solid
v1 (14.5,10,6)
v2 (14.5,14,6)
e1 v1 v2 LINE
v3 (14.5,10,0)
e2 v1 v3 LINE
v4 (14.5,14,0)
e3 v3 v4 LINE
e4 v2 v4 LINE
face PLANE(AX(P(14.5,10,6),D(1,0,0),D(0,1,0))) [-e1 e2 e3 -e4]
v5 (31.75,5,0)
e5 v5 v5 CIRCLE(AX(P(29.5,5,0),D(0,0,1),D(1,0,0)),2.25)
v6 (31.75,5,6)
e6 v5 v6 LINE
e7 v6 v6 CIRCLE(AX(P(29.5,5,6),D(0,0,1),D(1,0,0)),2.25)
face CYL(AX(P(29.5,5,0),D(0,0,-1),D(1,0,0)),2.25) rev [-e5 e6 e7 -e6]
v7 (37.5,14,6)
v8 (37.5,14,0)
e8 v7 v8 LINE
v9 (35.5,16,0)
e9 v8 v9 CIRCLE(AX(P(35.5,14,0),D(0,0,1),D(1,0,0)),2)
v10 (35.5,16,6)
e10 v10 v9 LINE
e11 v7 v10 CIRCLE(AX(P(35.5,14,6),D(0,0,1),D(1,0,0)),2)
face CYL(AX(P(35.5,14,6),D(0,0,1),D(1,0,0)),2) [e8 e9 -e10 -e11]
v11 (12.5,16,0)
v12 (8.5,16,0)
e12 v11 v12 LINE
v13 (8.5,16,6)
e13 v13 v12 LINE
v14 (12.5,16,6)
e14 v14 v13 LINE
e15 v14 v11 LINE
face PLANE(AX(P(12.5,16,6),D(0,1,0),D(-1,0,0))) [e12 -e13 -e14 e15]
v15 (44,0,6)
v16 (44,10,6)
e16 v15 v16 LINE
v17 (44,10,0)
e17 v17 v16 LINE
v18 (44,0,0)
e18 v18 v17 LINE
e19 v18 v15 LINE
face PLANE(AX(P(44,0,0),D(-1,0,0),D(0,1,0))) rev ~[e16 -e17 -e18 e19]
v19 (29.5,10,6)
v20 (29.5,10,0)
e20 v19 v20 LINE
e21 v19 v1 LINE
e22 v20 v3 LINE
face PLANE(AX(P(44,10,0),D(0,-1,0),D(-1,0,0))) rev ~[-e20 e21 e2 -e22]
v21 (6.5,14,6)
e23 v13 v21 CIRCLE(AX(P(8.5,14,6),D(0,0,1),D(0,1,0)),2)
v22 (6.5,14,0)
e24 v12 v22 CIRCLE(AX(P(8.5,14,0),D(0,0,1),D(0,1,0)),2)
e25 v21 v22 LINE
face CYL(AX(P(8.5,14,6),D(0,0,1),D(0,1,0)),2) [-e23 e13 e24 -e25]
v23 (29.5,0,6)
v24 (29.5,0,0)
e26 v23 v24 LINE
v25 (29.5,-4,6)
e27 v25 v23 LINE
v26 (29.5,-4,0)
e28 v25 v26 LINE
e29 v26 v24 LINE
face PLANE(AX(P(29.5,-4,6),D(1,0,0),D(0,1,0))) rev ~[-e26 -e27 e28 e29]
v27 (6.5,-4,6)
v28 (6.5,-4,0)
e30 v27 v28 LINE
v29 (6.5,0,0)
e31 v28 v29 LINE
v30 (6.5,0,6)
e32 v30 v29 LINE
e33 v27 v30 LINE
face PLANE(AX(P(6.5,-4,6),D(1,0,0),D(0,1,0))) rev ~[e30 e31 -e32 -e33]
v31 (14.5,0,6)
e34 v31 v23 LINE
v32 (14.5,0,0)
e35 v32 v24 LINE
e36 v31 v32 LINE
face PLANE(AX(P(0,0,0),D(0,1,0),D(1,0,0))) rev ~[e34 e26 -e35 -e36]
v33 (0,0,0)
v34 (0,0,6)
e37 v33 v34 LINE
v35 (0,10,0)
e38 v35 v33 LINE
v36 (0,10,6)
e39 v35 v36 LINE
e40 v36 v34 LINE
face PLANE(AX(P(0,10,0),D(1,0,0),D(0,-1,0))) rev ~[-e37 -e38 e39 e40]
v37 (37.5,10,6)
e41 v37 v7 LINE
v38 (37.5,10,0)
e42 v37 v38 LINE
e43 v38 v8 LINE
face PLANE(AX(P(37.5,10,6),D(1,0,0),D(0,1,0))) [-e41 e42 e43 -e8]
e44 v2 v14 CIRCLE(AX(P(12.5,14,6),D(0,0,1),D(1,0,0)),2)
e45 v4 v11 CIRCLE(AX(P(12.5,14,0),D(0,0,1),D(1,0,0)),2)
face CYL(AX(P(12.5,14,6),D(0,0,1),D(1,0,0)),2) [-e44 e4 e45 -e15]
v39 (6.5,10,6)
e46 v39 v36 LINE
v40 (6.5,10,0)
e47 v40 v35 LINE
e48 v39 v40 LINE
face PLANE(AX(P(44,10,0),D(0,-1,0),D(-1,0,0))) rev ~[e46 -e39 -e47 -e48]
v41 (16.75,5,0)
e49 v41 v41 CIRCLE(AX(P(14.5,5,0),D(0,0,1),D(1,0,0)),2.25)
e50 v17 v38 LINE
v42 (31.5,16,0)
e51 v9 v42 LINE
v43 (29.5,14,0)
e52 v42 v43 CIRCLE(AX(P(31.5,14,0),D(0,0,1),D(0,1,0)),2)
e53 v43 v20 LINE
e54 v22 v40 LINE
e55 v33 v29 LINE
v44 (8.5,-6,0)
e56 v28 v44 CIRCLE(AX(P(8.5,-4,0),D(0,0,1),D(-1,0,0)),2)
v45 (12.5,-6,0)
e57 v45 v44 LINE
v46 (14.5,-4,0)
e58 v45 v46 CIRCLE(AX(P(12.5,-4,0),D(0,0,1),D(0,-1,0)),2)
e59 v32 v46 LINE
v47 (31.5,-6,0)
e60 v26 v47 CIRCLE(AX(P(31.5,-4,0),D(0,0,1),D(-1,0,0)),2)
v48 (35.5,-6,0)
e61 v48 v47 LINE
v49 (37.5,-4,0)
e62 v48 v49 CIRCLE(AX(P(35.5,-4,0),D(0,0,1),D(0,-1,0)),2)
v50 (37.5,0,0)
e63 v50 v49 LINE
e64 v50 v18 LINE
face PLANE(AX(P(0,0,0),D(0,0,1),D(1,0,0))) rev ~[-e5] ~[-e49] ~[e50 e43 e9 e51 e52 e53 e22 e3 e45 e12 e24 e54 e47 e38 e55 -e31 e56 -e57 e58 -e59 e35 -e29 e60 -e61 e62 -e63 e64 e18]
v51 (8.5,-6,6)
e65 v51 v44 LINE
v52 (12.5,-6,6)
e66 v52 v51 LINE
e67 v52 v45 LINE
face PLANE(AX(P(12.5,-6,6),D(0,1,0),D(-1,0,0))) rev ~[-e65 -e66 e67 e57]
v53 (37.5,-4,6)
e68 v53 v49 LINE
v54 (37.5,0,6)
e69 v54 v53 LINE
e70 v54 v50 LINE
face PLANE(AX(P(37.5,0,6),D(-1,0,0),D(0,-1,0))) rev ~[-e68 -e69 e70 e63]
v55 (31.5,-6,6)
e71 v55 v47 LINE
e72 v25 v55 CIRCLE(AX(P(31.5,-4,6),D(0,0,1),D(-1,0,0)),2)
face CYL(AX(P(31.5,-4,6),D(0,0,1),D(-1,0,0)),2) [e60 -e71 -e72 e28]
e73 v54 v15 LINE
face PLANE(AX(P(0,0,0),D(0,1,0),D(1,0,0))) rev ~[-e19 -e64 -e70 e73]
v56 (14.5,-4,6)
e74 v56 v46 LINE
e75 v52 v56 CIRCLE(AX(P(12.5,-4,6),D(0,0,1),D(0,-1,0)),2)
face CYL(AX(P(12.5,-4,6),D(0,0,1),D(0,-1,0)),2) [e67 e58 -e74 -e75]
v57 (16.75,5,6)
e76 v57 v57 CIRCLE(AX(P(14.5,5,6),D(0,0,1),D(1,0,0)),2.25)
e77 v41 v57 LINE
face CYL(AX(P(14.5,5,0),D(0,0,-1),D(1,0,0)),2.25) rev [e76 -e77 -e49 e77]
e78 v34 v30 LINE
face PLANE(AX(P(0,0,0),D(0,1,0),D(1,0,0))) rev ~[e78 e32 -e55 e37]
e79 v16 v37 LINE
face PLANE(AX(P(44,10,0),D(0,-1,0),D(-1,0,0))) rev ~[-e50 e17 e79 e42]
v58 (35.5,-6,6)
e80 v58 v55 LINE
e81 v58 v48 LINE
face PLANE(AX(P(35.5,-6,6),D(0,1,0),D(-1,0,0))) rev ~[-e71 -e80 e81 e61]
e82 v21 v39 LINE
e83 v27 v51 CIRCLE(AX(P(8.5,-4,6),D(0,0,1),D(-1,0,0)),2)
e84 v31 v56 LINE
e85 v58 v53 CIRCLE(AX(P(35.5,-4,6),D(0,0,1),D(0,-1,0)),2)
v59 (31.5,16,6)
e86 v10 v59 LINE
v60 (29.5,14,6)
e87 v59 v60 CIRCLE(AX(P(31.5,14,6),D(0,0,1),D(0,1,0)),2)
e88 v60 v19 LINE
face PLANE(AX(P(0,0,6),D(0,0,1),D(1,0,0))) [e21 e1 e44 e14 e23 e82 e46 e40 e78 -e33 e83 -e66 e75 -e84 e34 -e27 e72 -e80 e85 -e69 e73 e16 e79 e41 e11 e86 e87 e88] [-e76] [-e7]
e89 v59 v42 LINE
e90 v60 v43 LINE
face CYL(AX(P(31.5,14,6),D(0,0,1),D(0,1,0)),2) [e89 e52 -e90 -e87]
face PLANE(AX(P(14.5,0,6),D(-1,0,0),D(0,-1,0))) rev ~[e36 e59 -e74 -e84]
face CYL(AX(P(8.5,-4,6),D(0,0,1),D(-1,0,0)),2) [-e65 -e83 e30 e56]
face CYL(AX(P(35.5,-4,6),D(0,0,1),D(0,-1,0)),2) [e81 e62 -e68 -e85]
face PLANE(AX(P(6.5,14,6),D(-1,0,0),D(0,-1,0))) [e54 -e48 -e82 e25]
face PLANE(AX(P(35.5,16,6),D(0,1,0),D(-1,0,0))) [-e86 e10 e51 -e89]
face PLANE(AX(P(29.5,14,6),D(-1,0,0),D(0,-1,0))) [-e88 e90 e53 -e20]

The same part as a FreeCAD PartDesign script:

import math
import FreeCAD as App
import Part
import Sketcher
from FreeCAD import Vector

doc = App.newDocument("Part")
body = doc.addObject("PartDesign::Body", "Body")

# Sketch on XY plane
sketch1 = body.newObject("Sketcher::SketchObject", "Sketch")
sketch1.AttachmentSupport = (doc.getObject("XY_Plane"), [""])
sketch1.MapMode = "FlatFace"
sketch1.addGeometry([
    Part.LineSegment(Vector(0, 10, 0), Vector(0, 0, 0)),  # 0
    Part.LineSegment(Vector(0, 0, 0), Vector(44, 0, 0)),  # 1
    Part.LineSegment(Vector(44, 0, 0), Vector(44, 10, 0)),  # 2
    Part.LineSegment(Vector(44, 10, 0), Vector(0, 10, 0)),  # 3
    Part.Circle(Vector(14.5, 5, 0), Vector(0, 0, 1), 2.25),  # 4
    Part.Circle(Vector(29.5, 5, 0), Vector(0, 0, 1), 2.25),  # 5
], False)
sketch1.addConstraint([
    Sketcher.Constraint("Coincident", 0, 2, 1, 1),
    Sketcher.Constraint("Coincident", 1, 2, 2, 1),
    Sketcher.Constraint("Coincident", 2, 2, 3, 1),
    Sketcher.Constraint("Coincident", 3, 2, 0, 1),
    Sketcher.Constraint("Vertical", 0),
    Sketcher.Constraint("Horizontal", 1),
    Sketcher.Constraint("Vertical", 2),
    Sketcher.Constraint("Horizontal", 3),
    Sketcher.Constraint("Coincident", 0, 2, -1, 1),
    Sketcher.Constraint("Equal", 4, 5),
    Sketcher.Constraint("Horizontal", 4, 3, 5, 3),
    Sketcher.Constraint("Diameter", 4, 4.5),
    Sketcher.Constraint("DistanceX", 1, 1, 1, 2, 44.0),
    Sketcher.Constraint("DistanceY", 0, 2, 0, 1, 10.0),
    Sketcher.Constraint("DistanceX", 4, 3, 5, 3, 15.0),
    Sketcher.Constraint("DistanceY", -1, 1, 4, 3, 5.0),
    Sketcher.Constraint("DistanceX", -1, 1, 4, 3, 14.5),
])
pad1 = body.newObject("PartDesign::Pad", "Pad")
pad1.Profile = sketch1
pad1.Length = 6

# Sketch on XY plane
sketch2 = body.newObject("Sketcher::SketchObject", "Sketch001")
sketch2.AttachmentSupport = (doc.getObject("XY_Plane"), [""])
sketch2.MapMode = "FlatFace"
sketch2.AttachmentOffset = App.Placement(Vector(0, 0, 6), App.Rotation())
sketch2.addGeometry([
    Part.LineSegment(Vector(37.5, 0, 0), Vector(29.5, 0, 0)),  # 0
    Part.LineSegment(Vector(29.5, 0, 0), Vector(29.5, -4, 0)),  # 1
    Part.ArcOfCircle(Part.Circle(Vector(31.5, -4, 0), Vector(0, 0, 1), 2), math.radians(180), math.radians(270)),  # 2
    Part.LineSegment(Vector(31.5, -6, 0), Vector(35.5, -6, 0)),  # 3
    Part.ArcOfCircle(Part.Circle(Vector(35.5, -4, 0), Vector(0, 0, 1), 2), math.radians(-90), math.radians(0)),  # 4
    Part.LineSegment(Vector(37.5, -4, 0), Vector(37.5, 0, 0)),  # 5
    Part.LineSegment(Vector(14.5, 0, 0), Vector(6.5, 0, 0)),  # 6
    Part.LineSegment(Vector(6.5, 0, 0), Vector(6.5, -4, 0)),  # 7
    Part.ArcOfCircle(Part.Circle(Vector(8.5, -4, 0), Vector(0, 0, 1), 2), math.radians(180), math.radians(270)),  # 8
    Part.LineSegment(Vector(8.5, -6, 0), Vector(12.5, -6, 0)),  # 9
    Part.ArcOfCircle(Part.Circle(Vector(12.5, -4, 0), Vector(0, 0, 1), 2), math.radians(-90), math.radians(0)),  # 10
    Part.LineSegment(Vector(14.5, -4, 0), Vector(14.5, 0, 0)),  # 11
    Part.LineSegment(Vector(6.5, 10, 0), Vector(14.5, 10, 0)),  # 12
    Part.LineSegment(Vector(14.5, 10, 0), Vector(14.5, 14, 0)),  # 13
    Part.ArcOfCircle(Part.Circle(Vector(12.5, 14, 0), Vector(0, 0, 1), 2), math.radians(0), math.radians(90)),  # 14
    Part.LineSegment(Vector(12.5, 16, 0), Vector(8.5, 16, 0)),  # 15
    Part.ArcOfCircle(Part.Circle(Vector(8.5, 14, 0), Vector(0, 0, 1), 2), math.radians(90), math.radians(180)),  # 16
    Part.LineSegment(Vector(6.5, 14, 0), Vector(6.5, 10, 0)),  # 17
    Part.LineSegment(Vector(29.5, 10, 0), Vector(37.5, 10, 0)),  # 18
    Part.LineSegment(Vector(37.5, 10, 0), Vector(37.5, 14, 0)),  # 19
    Part.ArcOfCircle(Part.Circle(Vector(35.5, 14, 0), Vector(0, 0, 1), 2), math.radians(0), math.radians(90)),  # 20
    Part.LineSegment(Vector(35.5, 16, 0), Vector(31.5, 16, 0)),  # 21
    Part.ArcOfCircle(Part.Circle(Vector(31.5, 14, 0), Vector(0, 0, 1), 2), math.radians(90), math.radians(180)),  # 22
    Part.LineSegment(Vector(29.5, 14, 0), Vector(29.5, 10, 0)),  # 23
], False)
sketch2.addConstraint([
    Sketcher.Constraint("Coincident", 0, 2, 1, 1),
    Sketcher.Constraint("Tangent", 1, 2, 2, 1),
    Sketcher.Constraint("Tangent", 2, 2, 3, 1),
    Sketcher.Constraint("Tangent", 3, 2, 4, 1),
    Sketcher.Constraint("Tangent", 4, 2, 5, 1),
    Sketcher.Constraint("Coincident", 5, 2, 0, 1),
    Sketcher.Constraint("Coincident", 6, 2, 7, 1),
    Sketcher.Constraint("Tangent", 7, 2, 8, 1),
    Sketcher.Constraint("Tangent", 8, 2, 9, 1),
    Sketcher.Constraint("Tangent", 9, 2, 10, 1),
    Sketcher.Constraint("Tangent", 10, 2, 11, 1),
    Sketcher.Constraint("Coincident", 11, 2, 6, 1),
    Sketcher.Constraint("Coincident", 12, 2, 13, 1),
    Sketcher.Constraint("Tangent", 13, 2, 14, 1),
    Sketcher.Constraint("Tangent", 14, 2, 15, 1),
    Sketcher.Constraint("Tangent", 15, 2, 16, 1),
    Sketcher.Constraint("Tangent", 16, 2, 17, 1),
    Sketcher.Constraint("Coincident", 17, 2, 12, 1),
    Sketcher.Constraint("Coincident", 18, 2, 19, 1),
    Sketcher.Constraint("Tangent", 19, 2, 20, 1),
    Sketcher.Constraint("Tangent", 20, 2, 21, 1),
    Sketcher.Constraint("Tangent", 21, 2, 22, 1),
    Sketcher.Constraint("Tangent", 22, 2, 23, 1),
    Sketcher.Constraint("Coincident", 23, 2, 18, 1),
    Sketcher.Constraint("Horizontal", 0),
    Sketcher.Constraint("Vertical", 1),
    Sketcher.Constraint("Horizontal", 3),
    Sketcher.Constraint("Vertical", 5),
    Sketcher.Constraint("Horizontal", 6),
    Sketcher.Constraint("Vertical", 7),
    Sketcher.Constraint("Horizontal", 9),
    Sketcher.Constraint("Vertical", 11),
    Sketcher.Constraint("Horizontal", 12),
    Sketcher.Constraint("Vertical", 13),
    Sketcher.Constraint("Horizontal", 15),
    Sketcher.Constraint("Vertical", 17),
    Sketcher.Constraint("Horizontal", 18),
    Sketcher.Constraint("Vertical", 19),
    Sketcher.Constraint("Horizontal", 21),
    Sketcher.Constraint("Vertical", 23),
    Sketcher.Constraint("Equal", 2, 4),
    Sketcher.Constraint("Equal", 4, 8),
    Sketcher.Constraint("Equal", 8, 10),
    Sketcher.Constraint("Equal", 10, 14),
    Sketcher.Constraint("Equal", 14, 16),
    Sketcher.Constraint("Equal", 16, 20),
    Sketcher.Constraint("Equal", 20, 22),
    Sketcher.Constraint("PointOnObject", 0, 2, -1),
    Sketcher.Constraint("PointOnObject", 6, 2, -1),
    Sketcher.Constraint("Horizontal", 4, 3, 8, 3),
    Sketcher.Constraint("Horizontal", 16, 3, 20, 3),
    Sketcher.Constraint("Horizontal", 17, 2, 18, 2),
    Sketcher.Constraint("Vertical", 10, 3, 14, 3),
    Sketcher.Constraint("Vertical", 8, 3, 16, 3),
    Sketcher.Constraint("Vertical", 4, 3, 20, 3),
    Sketcher.Constraint("Vertical", 2, 3, 22, 3),
    Sketcher.Constraint("Equal", 0, 6),
    Sketcher.Constraint("Equal", 21, 1),
    Sketcher.Constraint("Equal", 11, 13),
    Sketcher.Constraint("Radius", 2, 2.0),
    Sketcher.Constraint("DistanceX", 0, 2, 0, 1, 8.0),
    Sketcher.Constraint("DistanceY", -1, 1, 14, 3, 14.0),
    Sketcher.Constraint("DistanceX", 8, 3, 2, 3, 23.0),
    Sketcher.Constraint("DistanceX", -1, 1, 2, 3, 31.5),
])
pad2 = body.newObject("PartDesign::Pad", "Pad001")
pad2.Profile = sketch2
pad2.Length = 6
pad2.Reversed = True

doc.recompute()
